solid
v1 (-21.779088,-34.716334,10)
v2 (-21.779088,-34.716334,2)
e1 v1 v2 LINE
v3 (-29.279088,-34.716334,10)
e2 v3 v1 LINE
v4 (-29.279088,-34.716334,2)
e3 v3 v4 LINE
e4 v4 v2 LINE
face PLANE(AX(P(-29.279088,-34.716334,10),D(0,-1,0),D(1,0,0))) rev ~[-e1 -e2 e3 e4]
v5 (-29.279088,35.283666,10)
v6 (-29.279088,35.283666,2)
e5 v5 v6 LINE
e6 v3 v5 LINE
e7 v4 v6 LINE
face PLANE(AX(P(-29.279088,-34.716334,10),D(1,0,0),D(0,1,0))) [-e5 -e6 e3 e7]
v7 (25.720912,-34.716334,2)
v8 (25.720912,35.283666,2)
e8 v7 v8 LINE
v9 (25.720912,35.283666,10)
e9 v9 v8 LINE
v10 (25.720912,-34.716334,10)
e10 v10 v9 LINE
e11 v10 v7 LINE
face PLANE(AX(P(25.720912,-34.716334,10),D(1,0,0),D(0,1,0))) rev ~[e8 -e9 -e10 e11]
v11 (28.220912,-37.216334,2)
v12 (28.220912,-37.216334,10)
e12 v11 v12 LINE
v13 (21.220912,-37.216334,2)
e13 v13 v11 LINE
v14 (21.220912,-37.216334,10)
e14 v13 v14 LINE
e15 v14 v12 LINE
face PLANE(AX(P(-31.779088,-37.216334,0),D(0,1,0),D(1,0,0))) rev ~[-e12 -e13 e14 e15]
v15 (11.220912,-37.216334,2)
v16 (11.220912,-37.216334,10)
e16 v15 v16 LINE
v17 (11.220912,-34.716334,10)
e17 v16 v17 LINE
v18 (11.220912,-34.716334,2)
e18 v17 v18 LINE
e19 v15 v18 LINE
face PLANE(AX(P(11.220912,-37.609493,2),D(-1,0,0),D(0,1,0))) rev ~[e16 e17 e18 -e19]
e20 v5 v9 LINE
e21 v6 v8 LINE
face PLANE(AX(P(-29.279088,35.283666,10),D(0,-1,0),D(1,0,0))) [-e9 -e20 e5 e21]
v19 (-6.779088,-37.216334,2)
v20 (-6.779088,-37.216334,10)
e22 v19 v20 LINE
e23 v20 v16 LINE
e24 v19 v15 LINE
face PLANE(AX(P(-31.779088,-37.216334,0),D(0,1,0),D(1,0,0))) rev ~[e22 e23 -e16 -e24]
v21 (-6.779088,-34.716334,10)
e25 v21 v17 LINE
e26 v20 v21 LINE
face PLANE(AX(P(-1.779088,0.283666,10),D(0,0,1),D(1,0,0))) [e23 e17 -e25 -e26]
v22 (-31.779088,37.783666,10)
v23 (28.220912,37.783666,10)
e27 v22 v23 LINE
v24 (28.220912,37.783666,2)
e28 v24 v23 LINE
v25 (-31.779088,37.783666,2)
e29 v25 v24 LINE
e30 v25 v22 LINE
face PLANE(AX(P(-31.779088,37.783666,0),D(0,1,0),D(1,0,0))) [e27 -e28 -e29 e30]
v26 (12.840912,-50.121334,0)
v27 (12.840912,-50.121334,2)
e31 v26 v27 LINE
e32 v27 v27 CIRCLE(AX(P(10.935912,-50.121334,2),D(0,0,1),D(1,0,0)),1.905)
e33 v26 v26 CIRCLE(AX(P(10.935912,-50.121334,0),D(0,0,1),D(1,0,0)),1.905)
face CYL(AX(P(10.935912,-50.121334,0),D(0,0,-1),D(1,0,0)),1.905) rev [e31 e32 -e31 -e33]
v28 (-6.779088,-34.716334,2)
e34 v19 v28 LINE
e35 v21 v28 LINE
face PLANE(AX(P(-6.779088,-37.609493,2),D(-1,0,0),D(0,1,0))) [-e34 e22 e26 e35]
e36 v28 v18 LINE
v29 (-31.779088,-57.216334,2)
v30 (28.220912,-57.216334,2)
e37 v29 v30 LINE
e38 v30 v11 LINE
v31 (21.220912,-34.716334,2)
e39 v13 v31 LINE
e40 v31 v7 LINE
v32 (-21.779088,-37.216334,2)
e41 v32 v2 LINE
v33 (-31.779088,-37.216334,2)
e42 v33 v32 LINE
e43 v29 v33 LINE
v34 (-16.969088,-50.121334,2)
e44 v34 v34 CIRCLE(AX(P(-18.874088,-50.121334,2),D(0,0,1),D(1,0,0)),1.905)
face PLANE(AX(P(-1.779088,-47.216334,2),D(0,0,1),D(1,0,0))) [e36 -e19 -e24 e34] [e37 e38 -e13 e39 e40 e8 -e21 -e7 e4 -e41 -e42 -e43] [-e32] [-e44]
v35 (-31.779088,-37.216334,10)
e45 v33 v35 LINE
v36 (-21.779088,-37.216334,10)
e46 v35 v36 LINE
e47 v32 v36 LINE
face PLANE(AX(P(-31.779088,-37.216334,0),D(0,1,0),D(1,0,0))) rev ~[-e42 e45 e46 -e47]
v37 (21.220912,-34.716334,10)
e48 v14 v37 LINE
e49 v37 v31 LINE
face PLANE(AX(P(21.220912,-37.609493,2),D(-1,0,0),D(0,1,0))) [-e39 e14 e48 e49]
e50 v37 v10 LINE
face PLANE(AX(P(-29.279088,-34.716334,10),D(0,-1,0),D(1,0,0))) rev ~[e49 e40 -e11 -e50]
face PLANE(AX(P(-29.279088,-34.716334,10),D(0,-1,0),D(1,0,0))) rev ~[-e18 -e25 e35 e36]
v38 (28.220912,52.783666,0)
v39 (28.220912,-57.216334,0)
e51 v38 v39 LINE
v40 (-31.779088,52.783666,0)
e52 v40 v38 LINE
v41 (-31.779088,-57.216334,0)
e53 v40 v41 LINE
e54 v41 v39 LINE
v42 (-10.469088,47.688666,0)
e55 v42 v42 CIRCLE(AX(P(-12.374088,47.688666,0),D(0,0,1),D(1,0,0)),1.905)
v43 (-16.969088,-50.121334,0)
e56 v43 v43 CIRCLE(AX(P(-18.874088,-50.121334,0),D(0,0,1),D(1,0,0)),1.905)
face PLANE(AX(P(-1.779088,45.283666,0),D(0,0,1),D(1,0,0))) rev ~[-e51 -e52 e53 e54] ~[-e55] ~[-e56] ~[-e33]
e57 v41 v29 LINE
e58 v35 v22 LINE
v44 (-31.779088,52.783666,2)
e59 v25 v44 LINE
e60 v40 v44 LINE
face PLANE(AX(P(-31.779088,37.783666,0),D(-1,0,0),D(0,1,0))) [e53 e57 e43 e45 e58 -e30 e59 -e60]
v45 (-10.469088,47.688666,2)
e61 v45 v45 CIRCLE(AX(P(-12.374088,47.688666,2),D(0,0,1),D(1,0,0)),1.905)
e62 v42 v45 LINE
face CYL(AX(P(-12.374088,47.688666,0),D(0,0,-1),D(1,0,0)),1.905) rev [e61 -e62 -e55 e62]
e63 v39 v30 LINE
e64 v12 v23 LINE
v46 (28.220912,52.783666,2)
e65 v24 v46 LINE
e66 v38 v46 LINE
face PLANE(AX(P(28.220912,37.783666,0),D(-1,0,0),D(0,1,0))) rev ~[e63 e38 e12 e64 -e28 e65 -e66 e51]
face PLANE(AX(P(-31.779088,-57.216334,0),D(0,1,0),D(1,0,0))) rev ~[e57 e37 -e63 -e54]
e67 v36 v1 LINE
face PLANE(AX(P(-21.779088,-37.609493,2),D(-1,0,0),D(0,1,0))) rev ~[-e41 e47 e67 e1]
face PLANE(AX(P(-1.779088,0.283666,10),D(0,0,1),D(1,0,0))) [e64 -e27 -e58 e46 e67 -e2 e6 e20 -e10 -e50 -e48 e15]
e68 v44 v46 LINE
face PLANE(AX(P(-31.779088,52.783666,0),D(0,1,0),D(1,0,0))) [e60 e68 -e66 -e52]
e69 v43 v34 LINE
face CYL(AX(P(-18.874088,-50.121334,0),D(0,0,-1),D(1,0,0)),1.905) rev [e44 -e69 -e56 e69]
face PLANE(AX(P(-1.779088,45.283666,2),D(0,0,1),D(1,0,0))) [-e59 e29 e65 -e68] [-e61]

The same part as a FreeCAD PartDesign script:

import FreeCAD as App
import Part
import Sketcher


def add_polygon(sketch, points):
    """Adds a closed chain of lines whose ends are joined by coincident constraints."""
    first, n = sketch.GeometryCount, len(points)
    for a, b in zip(points, points[1:] + points[:1]):
        sketch.addGeometry(Part.LineSegment(App.Vector(*a, 0), App.Vector(*b, 0)), False)
    for i in range(n):
        sketch.addConstraint(Sketcher.Constraint("Coincident", first + i, 2, first + (i + 1) % n, 1))

doc = App.newDocument("Part")
body = doc.addObject("PartDesign::Body", "Body")

sketch1 = body.newObject("Sketcher::SketchObject", "Sketch")
sketch1.AttachmentSupport = (doc.getObject("XY_Plane"), [""])
sketch1.MapMode = "FlatFace"
add_polygon(sketch1, [(-32, 38), (-32, -37), (28, -37), (28, 38)])
sketch1.addConstraint([
    Sketcher.Constraint("Vertical", 0),
    Sketcher.Constraint("Horizontal", 1),
    Sketcher.Constraint("Vertical", 2),
    Sketcher.Constraint("Horizontal", 3),
    Sketcher.Constraint("DistanceX", 1, 1, 1, 2, 60.0),
    Sketcher.Constraint("DistanceY", 0, 2, 0, 1, 75.0),
    Sketcher.Constraint("DistanceX", 0, 2, -1, 1, 31.779088),
    Sketcher.Constraint("DistanceY", 0, 2, -1, 1, 37.216334),
])
pad1 = body.newObject("PartDesign::Pad", "Pad")
pad1.Profile = sketch1
pad1.Length = 10

sketch2 = body.newObject("Sketcher::SketchObject", "Sketch001")
sketch2.AttachmentSupport = (doc.getObject("XY_Plane"), [""])
sketch2.MapMode = "FlatFace"
sketch2.AttachmentOffset = App.Placement(App.Vector(0, 0, 10), App.Rotation())
add_polygon(sketch2, [(-29, 35), (-29, -35), (26, -35), (26, 35)])
sketch2.addConstraint([
    Sketcher.Constraint("Vertical", 0),
    Sketcher.Constraint("Horizontal", 1),
    Sketcher.Constraint("Vertical", 2),
    Sketcher.Constraint("Horizontal", 3),
    Sketcher.Constraint("DistanceX", 1, 1, 1, 2, 55.0),
    Sketcher.Constraint("DistanceY", 0, 2, 0, 1, 70.0),
    Sketcher.Constraint("DistanceX", 0, 2, -1, 1, 29.279088),
    Sketcher.Constraint("DistanceY", 0, 2, -1, 1, 34.716334),
])
pocket1 = body.newObject("PartDesign::Pocket", "Pocket")
pocket1.Profile = sketch2
pocket1.Length = 8

sketch3 = body.newObject("Sketcher::SketchObject", "Sketch002")
sketch3.AttachmentSupport = (doc.getObject("XY_Plane"), [""])
sketch3.MapMode = "FlatFace"
sketch3.AttachmentOffset = App.Placement(App.Vector(0, 0, 2), App.Rotation())
add_polygon(sketch3, [(-21.8, -34.5), (-21.8, -37.6), (-6.8, -37.6), (-6.8, -34.5)])
add_polygon(sketch3, [(11.2, -34.5), (11.2, -37.6), (21.2, -37.6), (21.2, -34.5)])
sketch3.addConstraint([
    Sketcher.Constraint("Vertical", 0),
    Sketcher.Constraint("Horizontal", 1),
    Sketcher.Constraint("Vertical", 2),
    Sketcher.Constraint("Horizontal", 3),
    Sketcher.Constraint("Vertical", 4),
    Sketcher.Constraint("Horizontal", 5),
    Sketcher.Constraint("Vertical", 6),
    Sketcher.Constraint("Horizontal", 7),
    Sketcher.Constraint("Horizontal", 1, 2, 4, 2),
    Sketcher.Constraint("Horizontal", 3, 2, 6, 2),
    Sketcher.Constraint("DistanceX", 1, 1, 1, 2, 15.0),
    Sketcher.Constraint("DistanceX", 5, 1, 5, 2, 10.0),
    Sketcher.Constraint("DistanceX", 1, 2, 4, 2, 18.0),
    Sketcher.Constraint("DistanceY", 0, 2, 0, 1, 3.129633),
    Sketcher.Constraint("DistanceX", 0, 2, -1, 1, 21.779088),
    Sketcher.Constraint("DistanceY", 2, 2, -1, 1, 34.479861),
])
pocket2 = body.newObject("PartDesign::Pocket", "Pocket001")
pocket2.Profile = sketch3
pocket2.Length = 8
pocket2.Reversed = True

sketch4 = body.newObject("Sketcher::SketchObject", "Sketch003")
sketch4.AttachmentSupport = (doc.getObject("XY_Plane"), [""])
sketch4.MapMode = "FlatFace"
add_polygon(sketch4, [(-31.8, -37.2), (-31.8, -57.2), (28.2, -57.2), (28.2, -37.2)])
sketch4.addGeometry(Part.Circle(App.Vector(-18.9, -50.1, 0), App.Vector(0, 0, 1), 1.9), False)
sketch4.addGeometry(Part.Circle(App.Vector(10.9, -50.1, 0), App.Vector(0, 0, 1), 1.9), False)
sketch4.addConstraint([
    Sketcher.Constraint("Vertical", 0),
    Sketcher.Constraint("Horizontal", 1),
    Sketcher.Constraint("Vertical", 2),
    Sketcher.Constraint("Horizontal", 3),
    Sketcher.Constraint("Equal", 4, 5),
    Sketcher.Constraint("Horizontal", 4, 3, 5, 3),
    Sketcher.Constraint("Diameter", 4, 3.81),
    Sketcher.Constraint("DistanceX", 1, 1, 1, 2, 60.0),
    Sketcher.Constraint("DistanceY", 0, 2, 0, 1, 20.0),
    Sketcher.Constraint("DistanceX", 4, 3, 5, 3, 29.81),
    Sketcher.Constraint("DistanceX", 0, 2, 4, 3, 12.905),
    Sketcher.Constraint("DistanceY", 0, 2, 4, 3, 7.095),
    Sketcher.Constraint("DistanceX", 4, 3, -1, 1, 18.874088),
    Sketcher.Constraint("DistanceY", 4, 3, -1, 1, 50.121334),
])
pad2 = body.newObject("PartDesign::Pad", "Pad001")
pad2.Profile = sketch4
pad2.Length = 2

sketch5 = body.newObject("Sketcher::SketchObject", "Sketch004")
sketch5.AttachmentSupport = (doc.getObject("XY_Plane"), [""])
sketch5.MapMode = "FlatFace"
add_polygon(sketch5, [(-31.8, 52.8), (-31.8, 37.8), (28.2, 37.8), (28.2, 52.8)])
sketch5.addGeometry(Part.Circle(App.Vector(-12.4, 47.7, 0), App.Vector(0, 0, 1), 1.9), False)
sketch5.addConstraint([
    Sketcher.Constraint("Vertical", 0),
    Sketcher.Constraint("Horizontal", 1),
    Sketcher.Constraint("Vertical", 2),
    Sketcher.Constraint("Horizontal", 3),
    Sketcher.Constraint("Diameter", 4, 3.81),
    Sketcher.Constraint("DistanceX", 1, 1, 1, 2, 60.0),
    Sketcher.Constraint("DistanceY", 0, 2, 0, 1, 15.0),
    Sketcher.Constraint("DistanceX", 0, 2, 4, 3, 19.405),
    Sketcher.Constraint("DistanceY", 0, 2, 4, 3, 9.905),
    Sketcher.Constraint("DistanceX", 0, 2, -1, 1, 31.779088),
    Sketcher.Constraint("DistanceY", -1, 1, 4, 3, 47.688666),
])
pad3 = body.newObject("PartDesign::Pad", "Pad002")
pad3.Profile = sketch5
pad3.Length = 2

doc.recompute()
